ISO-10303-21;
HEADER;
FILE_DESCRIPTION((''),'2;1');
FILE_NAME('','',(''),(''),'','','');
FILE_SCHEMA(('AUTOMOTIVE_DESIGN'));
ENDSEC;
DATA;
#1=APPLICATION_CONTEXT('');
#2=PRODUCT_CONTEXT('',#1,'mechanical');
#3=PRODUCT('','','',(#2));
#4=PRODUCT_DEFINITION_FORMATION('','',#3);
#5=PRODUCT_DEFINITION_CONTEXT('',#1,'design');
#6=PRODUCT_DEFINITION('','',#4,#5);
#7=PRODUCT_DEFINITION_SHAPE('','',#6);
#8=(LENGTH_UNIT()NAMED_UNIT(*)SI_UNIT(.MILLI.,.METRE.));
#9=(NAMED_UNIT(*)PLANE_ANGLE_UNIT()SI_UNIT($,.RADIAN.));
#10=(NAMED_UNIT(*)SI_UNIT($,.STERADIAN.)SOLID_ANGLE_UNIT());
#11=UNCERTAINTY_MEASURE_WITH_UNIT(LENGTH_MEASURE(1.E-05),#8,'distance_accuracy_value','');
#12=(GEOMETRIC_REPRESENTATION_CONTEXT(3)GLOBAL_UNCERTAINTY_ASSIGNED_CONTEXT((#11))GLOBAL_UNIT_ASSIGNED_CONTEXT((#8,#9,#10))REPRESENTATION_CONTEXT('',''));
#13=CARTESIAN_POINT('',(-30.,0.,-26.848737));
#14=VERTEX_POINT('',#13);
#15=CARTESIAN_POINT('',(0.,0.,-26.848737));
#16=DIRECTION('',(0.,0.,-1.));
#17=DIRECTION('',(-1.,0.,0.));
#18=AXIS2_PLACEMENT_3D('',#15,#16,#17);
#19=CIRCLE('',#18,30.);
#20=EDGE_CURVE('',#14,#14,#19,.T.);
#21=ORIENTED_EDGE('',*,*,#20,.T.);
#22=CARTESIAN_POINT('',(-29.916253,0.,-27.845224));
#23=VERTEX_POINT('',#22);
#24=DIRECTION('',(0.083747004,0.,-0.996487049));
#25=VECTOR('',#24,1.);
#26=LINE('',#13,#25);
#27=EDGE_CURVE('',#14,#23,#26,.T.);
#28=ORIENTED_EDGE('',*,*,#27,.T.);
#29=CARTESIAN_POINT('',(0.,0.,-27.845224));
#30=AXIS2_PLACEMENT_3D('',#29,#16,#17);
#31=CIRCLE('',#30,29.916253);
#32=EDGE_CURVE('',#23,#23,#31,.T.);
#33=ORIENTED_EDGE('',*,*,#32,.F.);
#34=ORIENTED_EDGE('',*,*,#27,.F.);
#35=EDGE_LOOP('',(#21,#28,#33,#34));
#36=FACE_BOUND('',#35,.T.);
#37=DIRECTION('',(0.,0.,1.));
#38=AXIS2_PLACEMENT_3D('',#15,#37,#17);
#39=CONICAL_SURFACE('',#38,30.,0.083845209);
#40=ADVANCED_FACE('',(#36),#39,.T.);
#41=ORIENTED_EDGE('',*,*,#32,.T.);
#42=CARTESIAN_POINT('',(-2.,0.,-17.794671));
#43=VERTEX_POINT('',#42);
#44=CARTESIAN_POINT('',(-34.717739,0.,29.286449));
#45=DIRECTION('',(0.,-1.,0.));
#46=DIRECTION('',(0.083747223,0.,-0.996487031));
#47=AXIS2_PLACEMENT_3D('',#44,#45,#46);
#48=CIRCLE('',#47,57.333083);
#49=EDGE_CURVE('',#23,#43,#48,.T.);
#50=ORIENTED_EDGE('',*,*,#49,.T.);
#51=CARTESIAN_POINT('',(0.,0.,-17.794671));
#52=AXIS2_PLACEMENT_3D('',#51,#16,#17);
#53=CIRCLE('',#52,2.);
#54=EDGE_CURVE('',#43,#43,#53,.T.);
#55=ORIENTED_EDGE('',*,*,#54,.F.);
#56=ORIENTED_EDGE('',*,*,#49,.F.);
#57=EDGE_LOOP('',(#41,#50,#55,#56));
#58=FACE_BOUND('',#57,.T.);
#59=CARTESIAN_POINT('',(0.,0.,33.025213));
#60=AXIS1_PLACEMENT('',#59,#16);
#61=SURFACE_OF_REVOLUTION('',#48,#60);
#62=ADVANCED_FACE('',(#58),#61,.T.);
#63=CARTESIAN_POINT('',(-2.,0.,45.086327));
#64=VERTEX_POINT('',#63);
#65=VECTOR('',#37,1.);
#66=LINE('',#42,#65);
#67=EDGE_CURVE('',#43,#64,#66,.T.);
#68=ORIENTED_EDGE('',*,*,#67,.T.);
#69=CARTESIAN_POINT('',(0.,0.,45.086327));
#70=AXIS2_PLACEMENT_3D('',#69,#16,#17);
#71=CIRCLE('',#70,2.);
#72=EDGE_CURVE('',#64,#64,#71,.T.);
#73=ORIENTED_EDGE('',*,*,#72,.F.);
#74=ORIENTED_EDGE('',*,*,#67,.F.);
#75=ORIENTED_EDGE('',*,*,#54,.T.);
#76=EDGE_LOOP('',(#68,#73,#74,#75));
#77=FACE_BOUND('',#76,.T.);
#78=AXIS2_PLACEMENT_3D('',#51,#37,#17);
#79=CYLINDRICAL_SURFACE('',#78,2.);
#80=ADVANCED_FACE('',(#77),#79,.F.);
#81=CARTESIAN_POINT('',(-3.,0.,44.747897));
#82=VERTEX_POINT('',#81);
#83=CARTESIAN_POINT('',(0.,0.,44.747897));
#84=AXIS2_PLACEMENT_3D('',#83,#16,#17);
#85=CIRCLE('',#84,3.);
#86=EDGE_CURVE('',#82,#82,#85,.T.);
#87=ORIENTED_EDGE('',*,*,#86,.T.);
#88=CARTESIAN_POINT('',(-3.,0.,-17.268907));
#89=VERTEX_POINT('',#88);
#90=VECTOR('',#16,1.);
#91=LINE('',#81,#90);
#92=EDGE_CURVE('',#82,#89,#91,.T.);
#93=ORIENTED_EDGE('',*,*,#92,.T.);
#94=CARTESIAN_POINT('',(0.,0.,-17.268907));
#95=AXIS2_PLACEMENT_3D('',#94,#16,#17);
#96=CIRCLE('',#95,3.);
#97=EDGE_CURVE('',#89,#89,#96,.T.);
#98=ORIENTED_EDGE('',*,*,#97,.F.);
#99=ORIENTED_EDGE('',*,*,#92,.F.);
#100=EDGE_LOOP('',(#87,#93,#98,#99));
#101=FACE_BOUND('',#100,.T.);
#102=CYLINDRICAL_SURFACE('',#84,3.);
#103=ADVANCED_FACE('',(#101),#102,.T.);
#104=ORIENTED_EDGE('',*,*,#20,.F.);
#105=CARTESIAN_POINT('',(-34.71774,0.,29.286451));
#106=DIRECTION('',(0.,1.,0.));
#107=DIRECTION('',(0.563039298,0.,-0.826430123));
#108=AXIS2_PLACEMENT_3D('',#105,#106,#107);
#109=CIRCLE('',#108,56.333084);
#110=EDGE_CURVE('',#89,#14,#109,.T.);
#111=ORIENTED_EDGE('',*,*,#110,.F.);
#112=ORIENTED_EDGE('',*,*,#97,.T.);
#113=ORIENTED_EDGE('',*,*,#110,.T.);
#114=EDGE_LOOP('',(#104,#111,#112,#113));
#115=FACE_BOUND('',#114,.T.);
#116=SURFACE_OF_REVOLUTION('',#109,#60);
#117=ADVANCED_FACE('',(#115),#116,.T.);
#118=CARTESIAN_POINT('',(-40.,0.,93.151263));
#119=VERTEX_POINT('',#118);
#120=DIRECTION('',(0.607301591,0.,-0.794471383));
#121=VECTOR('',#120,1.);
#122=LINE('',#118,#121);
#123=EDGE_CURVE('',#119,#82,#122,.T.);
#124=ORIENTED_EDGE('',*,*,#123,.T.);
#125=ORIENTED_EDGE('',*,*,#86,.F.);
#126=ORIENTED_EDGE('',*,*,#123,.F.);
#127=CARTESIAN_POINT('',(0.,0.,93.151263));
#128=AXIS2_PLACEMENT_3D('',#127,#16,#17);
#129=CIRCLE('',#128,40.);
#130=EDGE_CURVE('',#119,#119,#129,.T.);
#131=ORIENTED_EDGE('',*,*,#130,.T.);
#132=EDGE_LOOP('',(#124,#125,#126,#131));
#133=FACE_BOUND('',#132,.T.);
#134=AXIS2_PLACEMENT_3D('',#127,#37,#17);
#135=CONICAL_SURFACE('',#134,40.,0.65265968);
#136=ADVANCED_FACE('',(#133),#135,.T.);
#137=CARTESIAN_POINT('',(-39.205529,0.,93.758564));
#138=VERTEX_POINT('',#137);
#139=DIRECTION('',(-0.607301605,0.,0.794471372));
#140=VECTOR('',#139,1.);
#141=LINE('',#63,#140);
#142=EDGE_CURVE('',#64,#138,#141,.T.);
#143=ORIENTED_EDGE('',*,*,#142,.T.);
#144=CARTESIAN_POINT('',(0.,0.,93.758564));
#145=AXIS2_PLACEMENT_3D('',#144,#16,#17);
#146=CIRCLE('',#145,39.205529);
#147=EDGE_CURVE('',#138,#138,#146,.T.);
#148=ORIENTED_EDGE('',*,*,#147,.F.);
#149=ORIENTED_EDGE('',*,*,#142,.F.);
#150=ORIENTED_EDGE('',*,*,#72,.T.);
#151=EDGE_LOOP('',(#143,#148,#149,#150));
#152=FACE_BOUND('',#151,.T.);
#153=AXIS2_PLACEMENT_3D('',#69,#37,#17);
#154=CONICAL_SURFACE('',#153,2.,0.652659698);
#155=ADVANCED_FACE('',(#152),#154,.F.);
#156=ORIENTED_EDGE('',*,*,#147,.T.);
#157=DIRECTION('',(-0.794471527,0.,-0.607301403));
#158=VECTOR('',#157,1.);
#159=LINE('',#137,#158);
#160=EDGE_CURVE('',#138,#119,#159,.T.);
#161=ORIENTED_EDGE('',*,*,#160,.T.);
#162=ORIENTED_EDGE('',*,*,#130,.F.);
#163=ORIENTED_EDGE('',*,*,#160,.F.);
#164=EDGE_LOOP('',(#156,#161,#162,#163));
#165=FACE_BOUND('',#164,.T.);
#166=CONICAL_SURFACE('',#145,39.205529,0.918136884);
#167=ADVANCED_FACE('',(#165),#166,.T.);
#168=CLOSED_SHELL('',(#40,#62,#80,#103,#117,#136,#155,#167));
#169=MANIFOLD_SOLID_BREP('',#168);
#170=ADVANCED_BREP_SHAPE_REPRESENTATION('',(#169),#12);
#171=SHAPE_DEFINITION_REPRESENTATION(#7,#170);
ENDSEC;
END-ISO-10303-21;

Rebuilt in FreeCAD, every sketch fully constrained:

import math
import FreeCAD as App
import Part
import Sketcher

V = App.Vector

doc = App.newDocument("Part")
body = doc.addObject("PartDesign::Body", "Body")

# Sketch on XZ plane
sketch1 = body.newObject("Sketcher::SketchObject", "Sketch")
sketch1.AttachmentSupport = (doc.getObject("XZ_Plane"), [""])
sketch1.MapMode = "FlatFace"
sketch1.addGeometry([
    Part.LineSegment(V(-39.205529, 93.758564, 0), V(-40, 93.151263, 0)),  # 0
    Part.LineSegment(V(-40, 93.151263, 0), V(-3, 44.747897, 0)),  # 1
    Part.LineSegment(V(-3, 44.747897, 0), V(-3, -17.268907, 0)),  # 2
    Part.ArcOfCircle(Part.Circle(V(-34.71774, 29.286451, 0), V(0, 0, 1), 56.333084), math.radians(-85.19601), math.radians(-55.733753)),  # 3
    Part.LineSegment(V(-30, -26.848737, 0), V(-29.916253, -27.845224, 0)),  # 4
    Part.ArcOfCircle(Part.Circle(V(-34.717739, 29.286449, 0), V(0, 0, 1), 57.333083), math.radians(-85.196011), math.radians(-55.203686)),  # 5
    Part.LineSegment(V(-2, -17.794671, 0), V(-2, 45.086327, 0)),  # 6
    Part.LineSegment(V(-2, 45.086327, 0), V(-39.205529, 93.758564, 0)),  # 7
], False)
sketch1.addConstraint([
    Sketcher.Constraint("Coincident", 0, 2, 1, 1),
    Sketcher.Constraint("Coincident", 1, 2, 2, 1),
    Sketcher.Constraint("Coincident", 2, 2, 3, 2),
    Sketcher.Constraint("Coincident", 3, 1, 4, 1),
    Sketcher.Constraint("Coincident", 4, 2, 5, 1),
    Sketcher.Constraint("Coincident", 5, 2, 6, 1),
    Sketcher.Constraint("Coincident", 6, 2, 7, 1),
    Sketcher.Constraint("Coincident", 7, 2, 0, 1),
    Sketcher.Constraint("Vertical", 2),
    Sketcher.Constraint("Vertical", 6),
    Sketcher.Constraint("Coincident", 5, 3, 3, 3),
    Sketcher.Constraint("Perpendicular", 0, 1),
    Sketcher.Constraint("Parallel", 1, 7),
    Sketcher.Constraint("Equal", 0, 4),
    Sketcher.Constraint("Distance", 0, 0.999999),
    Sketcher.Constraint("DistanceX", 0, 2, -1, 1, 40.0),
    Sketcher.Constraint("DistanceX", 1, 2, -1, 1, 3.0),
    Sketcher.Constraint("DistanceX", 3, 1, -1, 1, 30.0),
    Sketcher.Constraint("DistanceX", 5, 2, -1, 1, 2.0),
    Sketcher.Constraint("DistanceY", 3, 1, 0, 2, 120.0),
    Sketcher.Constraint("Radius", 3, 56.333084),
    Sketcher.Constraint("DistanceY", 0, 2, 7, 2, 0.607301),
    Sketcher.Constraint("DistanceY", 2, 2, 2, 1, 62.016804),
    Sketcher.Constraint("DistanceY", -1, 1, 3, 3, 29.286451),
    Sketcher.Constraint("DistanceY", 4, 2, 1, 2, 72.593121),
])
revolution = body.newObject("PartDesign::Revolution", "Revolution")
revolution.Profile = sketch1
revolution.ReferenceAxis = (sketch1, ["V_Axis"])
revolution.Angle = 360

doc.recompute()
